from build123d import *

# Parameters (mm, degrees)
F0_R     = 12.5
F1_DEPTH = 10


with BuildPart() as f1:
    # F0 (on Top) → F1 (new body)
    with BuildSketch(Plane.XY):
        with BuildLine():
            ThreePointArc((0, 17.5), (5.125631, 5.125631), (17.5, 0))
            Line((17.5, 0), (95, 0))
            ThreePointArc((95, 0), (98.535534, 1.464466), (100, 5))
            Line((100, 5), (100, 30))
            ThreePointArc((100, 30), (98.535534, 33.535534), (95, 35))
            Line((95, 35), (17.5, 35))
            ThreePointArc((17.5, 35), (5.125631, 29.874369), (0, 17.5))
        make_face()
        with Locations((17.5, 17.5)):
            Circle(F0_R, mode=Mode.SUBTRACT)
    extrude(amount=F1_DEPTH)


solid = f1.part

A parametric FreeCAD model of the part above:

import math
import FreeCAD as App
import Part
import Sketcher

V = App.Vector
Q = App.Units.Quantity

doc = App.newDocument("Part")
body = doc.addObject("PartDesign::Body", "Body")

# Sketch on XY plane
sketch1 = body.newObject("Sketcher::SketchObject", "Sketch")
sketch1.AttachmentSupport = (doc.getObject("XY_Plane"), [""])
sketch1.MapMode = "FlatFace"
sketch1.addGeometry([
    Part.ArcOfCircle(Part.Circle(V(17.5, 17.5, 0), V(0, 0, 1), 17.5), math.radians(180), math.radians(270)),  # 0
    Part.LineSegment(V(17.5, 0, 0), V(95, 0, 0)),  # 1
    Part.ArcOfCircle(Part.Circle(V(95, 5, 0), V(0, 0, 1), 5), math.radians(-90), math.radians(0)),  # 2
    Part.LineSegment(V(100, 5, 0), V(100, 30, 0)),  # 3
    Part.ArcOfCircle(Part.Circle(V(95, 30, 0), V(0, 0, 1), 5), math.radians(0), math.radians(90)),  # 4
    Part.LineSegment(V(95, 35, 0), V(17.5, 35, 0)),  # 5
    Part.ArcOfCircle(Part.Circle(V(17.5, 17.5, 0), V(0, 0, 1), 17.5), math.radians(90), math.radians(180)),  # 6
    Part.Circle(V(17.5, 17.5, 0), V(0, 0, 1), 12.5),  # 7
], False)
sketch1.addConstraint([
    Sketcher.Constraint("Tangent", 0, 2, 1, 1),
    Sketcher.Constraint("Tangent", 1, 2, 2, 1),
    Sketcher.Constraint("Tangent", 2, 2, 3, 1),
    Sketcher.Constraint("Tangent", 3, 2, 4, 1),
    Sketcher.Constraint("Tangent", 4, 2, 5, 1),
    Sketcher.Constraint("Tangent", 5, 2, 6, 1),
    Sketcher.Constraint("Tangent", 6, 2, 0, 1),
    Sketcher.Constraint("Horizontal", 1),
    Sketcher.Constraint("Vertical", 3),
    Sketcher.Constraint("Horizontal", 5),
    Sketcher.Constraint("Coincident", 7, 3, 0, 3),
    Sketcher.Constraint("Equal", 2, 4),
    Sketcher.Constraint("Equal", 0, 6),
    Sketcher.Constraint("PointOnObject", 0, 2, -1),
    Sketcher.Constraint("PointOnObject", 6, 2, -2),
    Sketcher.Constraint("Horizontal", 7, 3, 6, 2),
    Sketcher.Constraint("Diameter", 7, Q("25 mm")),
    Sketcher.Constraint("Radius", 2, Q("5 mm")),
    Sketcher.Constraint("Radius", 0, Q("17.499999 mm")),
    Sketcher.Constraint("DistanceX", 1, 1, 1, 2, Q("77.5 mm")),
])
pad1 = body.newObject("PartDesign::Pad", "Pad")
pad1.Profile = sketch1
pad1.Length = 10

doc.recompute()
